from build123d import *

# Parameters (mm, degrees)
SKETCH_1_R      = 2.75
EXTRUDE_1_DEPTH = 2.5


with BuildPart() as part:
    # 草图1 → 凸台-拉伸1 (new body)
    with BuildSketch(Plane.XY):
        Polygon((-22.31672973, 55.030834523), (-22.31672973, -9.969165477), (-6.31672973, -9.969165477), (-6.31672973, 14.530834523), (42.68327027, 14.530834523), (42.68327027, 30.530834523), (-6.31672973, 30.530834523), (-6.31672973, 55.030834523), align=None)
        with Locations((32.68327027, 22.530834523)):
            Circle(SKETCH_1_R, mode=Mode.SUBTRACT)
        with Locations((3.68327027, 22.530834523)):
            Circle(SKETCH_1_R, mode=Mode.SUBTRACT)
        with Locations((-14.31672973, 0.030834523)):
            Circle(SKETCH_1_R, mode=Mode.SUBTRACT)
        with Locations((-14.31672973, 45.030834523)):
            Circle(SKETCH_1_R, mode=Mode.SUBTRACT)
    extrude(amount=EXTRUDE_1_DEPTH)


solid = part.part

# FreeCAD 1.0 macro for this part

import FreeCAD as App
import Part
import Sketcher


def add_polygon(sketch, points):
    """Adds a closed chain of lines whose ends are joined by coincident constraints."""
    first, n = sketch.GeometryCount, len(points)
    for a, b in zip(points, points[1:] + points[:1]):
        sketch.addGeometry(Part.LineSegment(App.Vector(*a, 0), App.Vector(*b, 0)), False)
    for i in range(n):
        sketch.addConstraint(Sketcher.Constraint("Coincident", first + i, 2, first + (i + 1) % n, 1))

doc = App.newDocument("Part")
body = doc.addObject("PartDesign::Body", "Body")

# Sketch on XY plane
sketch1 = body.newObject("Sketcher::SketchObject", "Sketch")
sketch1.AttachmentSupport = (doc.getObject("XY_Plane"), [""])
sketch1.MapMode = "FlatFace"
add_polygon(sketch1, [(-22.31673, 55.030835), (-22.31673, -9.969165), (-6.31673, -9.969165), (-6.31673, 14.530835), (42.68327, 14.530835), (42.68327, 30.530835), (-6.31673, 30.530835), (-6.31673, 55.030835)])  # lines 0-7
sketch1.addGeometry(Part.Circle(App.Vector(-14.31673, 0.030835, 0), App.Vector(0, 0, 1), 2.75), False)  # 8
sketch1.addGeometry(Part.Circle(App.Vector(3.68327, 22.530835, 0), App.Vector(0, 0, 1), 2.75), False)  # 9
sketch1.addGeometry(Part.Circle(App.Vector(-14.31673, 45.030835, 0), App.Vector(0, 0, 1), 2.75), False)  # 10
sketch1.addGeometry(Part.Circle(App.Vector(32.68327, 22.530835, 0), App.Vector(0, 0, 1), 2.75), False)  # 11
sketch1.addConstraint(Sketcher.Constraint("Vertical", 0))
sketch1.addConstraint(Sketcher.Constraint("Horizontal", 1))
sketch1.addConstraint(Sketcher.Constraint("Vertical", 2))
sketch1.addConstraint(Sketcher.Constraint("Horizontal", 3))
sketch1.addConstraint(Sketcher.Constraint("Vertical", 4))
sketch1.addConstraint(Sketcher.Constraint("Horizontal", 5))
sketch1.addConstraint(Sketcher.Constraint("Vertical", 6))
sketch1.addConstraint(Sketcher.Constraint("Horizontal", 7))
sketch1.addConstraint(Sketcher.Constraint("Equal", 8, 9))
sketch1.addConstraint(Sketcher.Constraint("Equal", 9, 10))
sketch1.addConstraint(Sketcher.Constraint("Equal", 10, 11))
sketch1.addConstraint(Sketcher.Constraint("Horizontal", 9, 3, 11, 3))
sketch1.addConstraint(Sketcher.Constraint("Vertical", 8, 3, 10, 3))
sketch1.addConstraint(Sketcher.Constraint("Vertical", 2, 2, 5, 2))
sketch1.addConstraint(Sketcher.Constraint("Equal", 7, 4))
sketch1.addConstraint(Sketcher.Constraint("Equal", 2, 6))
sketch1.addConstraint(Sketcher.Constraint("Diameter", 8, 5.5))
sketch1.addConstraint(Sketcher.Constraint("DistanceX", 1, 1, 1, 2, 16.0))
sketch1.addConstraint(Sketcher.Constraint("DistanceX", 3, 1, 3, 2, 49.0))
sketch1.addConstraint(Sketcher.Constraint("DistanceY", 0, 2, 0, 1, 65.0))
sketch1.addConstraint(Sketcher.Constraint("DistanceX", 8, 3, 9, 3, 18.0))
sketch1.addConstraint(Sketcher.Constraint("DistanceY", 8, 3, 10, 3, 45.0))
sketch1.addConstraint(Sketcher.Constraint("DistanceX", 9, 3, 11, 3, 29.0))
sketch1.addConstraint(Sketcher.Constraint("DistanceX", 0, 2, 8, 3, 8.0))
sketch1.addConstraint(Sketcher.Constraint("DistanceY", 0, 2, 8, 3, 10.0))
sketch1.addConstraint(Sketcher.Constraint("DistanceY", 2, 2, 9, 3, 8.0))
sketch1.addConstraint(Sketcher.Constraint("DistanceX", 8, 3, -1, 1, 14.31673))
sketch1.addConstraint(Sketcher.Constraint("DistanceY", -1, 1, 8, 3, 0.030835))
pad1 = body.newObject("PartDesign::Pad", "Pad")
pad1.Profile = sketch1
pad1.Length = 2.5

doc.recompute()
